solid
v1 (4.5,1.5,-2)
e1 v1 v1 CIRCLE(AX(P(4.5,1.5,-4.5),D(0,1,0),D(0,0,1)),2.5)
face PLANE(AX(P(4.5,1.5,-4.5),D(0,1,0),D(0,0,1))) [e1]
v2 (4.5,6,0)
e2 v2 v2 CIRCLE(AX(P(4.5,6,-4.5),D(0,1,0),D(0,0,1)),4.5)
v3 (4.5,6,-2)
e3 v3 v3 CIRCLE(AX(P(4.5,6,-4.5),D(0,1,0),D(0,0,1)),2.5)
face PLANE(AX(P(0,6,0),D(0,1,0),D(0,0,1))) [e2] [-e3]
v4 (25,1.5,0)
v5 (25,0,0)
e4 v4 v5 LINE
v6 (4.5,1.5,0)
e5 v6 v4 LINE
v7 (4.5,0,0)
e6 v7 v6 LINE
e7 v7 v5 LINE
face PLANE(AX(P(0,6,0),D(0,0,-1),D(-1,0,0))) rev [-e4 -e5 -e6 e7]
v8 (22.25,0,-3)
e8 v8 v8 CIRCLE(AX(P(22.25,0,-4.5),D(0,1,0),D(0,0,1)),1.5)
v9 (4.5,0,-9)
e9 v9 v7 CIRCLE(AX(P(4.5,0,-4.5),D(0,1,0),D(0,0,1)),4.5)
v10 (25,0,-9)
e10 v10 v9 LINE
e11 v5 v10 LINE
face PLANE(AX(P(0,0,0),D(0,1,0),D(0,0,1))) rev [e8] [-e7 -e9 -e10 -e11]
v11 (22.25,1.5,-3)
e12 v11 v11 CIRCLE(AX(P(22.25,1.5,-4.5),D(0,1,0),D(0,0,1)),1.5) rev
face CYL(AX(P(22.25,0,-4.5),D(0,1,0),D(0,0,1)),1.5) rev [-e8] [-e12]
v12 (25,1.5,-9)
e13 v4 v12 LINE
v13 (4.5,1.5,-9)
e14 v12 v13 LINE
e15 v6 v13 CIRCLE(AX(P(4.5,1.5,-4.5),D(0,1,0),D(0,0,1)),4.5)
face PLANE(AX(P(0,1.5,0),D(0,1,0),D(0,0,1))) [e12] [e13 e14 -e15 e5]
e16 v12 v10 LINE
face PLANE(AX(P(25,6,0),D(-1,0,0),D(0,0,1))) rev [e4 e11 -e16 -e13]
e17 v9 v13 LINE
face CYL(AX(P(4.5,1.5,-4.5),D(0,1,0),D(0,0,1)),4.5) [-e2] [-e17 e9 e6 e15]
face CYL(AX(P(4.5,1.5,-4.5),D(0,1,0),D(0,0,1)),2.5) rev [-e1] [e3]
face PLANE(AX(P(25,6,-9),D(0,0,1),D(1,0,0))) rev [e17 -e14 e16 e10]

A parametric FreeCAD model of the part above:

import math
import FreeCAD as App
import Part
import Sketcher
from FreeCAD import Vector

doc = App.newDocument("Part")
body = doc.addObject("PartDesign::Body", "Body")

sketch1 = doc.addObject("Sketcher::SketchObject", "Sketch")
body.addObject(sketch1)
sketch1.AttachmentSupport = (doc.XZ_Plane, [""])
sketch1.MapMode = "FlatFace"
sketch1.addGeometry(Part.LineSegment(Vector(0, -9, 0), Vector(0, 0, 0)), False)
sketch1.addGeometry(Part.LineSegment(Vector(0, 0, 0), Vector(25, 0, 0)), False)
sketch1.addGeometry(Part.LineSegment(Vector(25, 0, 0), Vector(25, -9, 0)), False)
sketch1.addGeometry(Part.LineSegment(Vector(25, -9, 0), Vector(0, -9, 0)), False)
sketch1.addConstraint(Sketcher.Constraint("Coincident", 0, 2, 1, 1))
sketch1.addConstraint(Sketcher.Constraint("Coincident", 1, 2, 2, 1))
sketch1.addConstraint(Sketcher.Constraint("Coincident", 2, 2, 3, 1))
sketch1.addConstraint(Sketcher.Constraint("Coincident", 3, 2, 0, 1))
sketch1.addConstraint(Sketcher.Constraint("Vertical", 0))
sketch1.addConstraint(Sketcher.Constraint("Horizontal", 1))
sketch1.addConstraint(Sketcher.Constraint("Vertical", 2))
sketch1.addConstraint(Sketcher.Constraint("Horizontal", 3))
sketch1.addConstraint(Sketcher.Constraint("Coincident", 0, 2, -1, 1))
sketch1.addConstraint(Sketcher.Constraint("DistanceX", 1, 1, 1, 2, 25.0))
sketch1.addConstraint(Sketcher.Constraint("DistanceY", 0, 1, 0, 2, 9.0))
pad1 = doc.addObject("PartDesign::Pad", "Pad")
body.addObject(pad1)
pad1.Profile = sketch1
pad1.Length = 6
pad1.Reversed = True

sketch2 = doc.addObject("Sketcher::SketchObject", "Sketch001")
body.addObject(sketch2)
sketch2.AttachmentSupport = (doc.XZ_Plane, [""])
sketch2.MapMode = "FlatFace"
sketch2.AttachmentOffset = App.Placement(Vector(0, 0, -6), App.Rotation())
sketch2.addGeometry(Part.Circle(Vector(4.5, -4.5, 0), Vector(0, 0, 1), 2.5), False)
sketch2.addConstraint(Sketcher.Constraint("Diameter", 0, 5.0))
sketch2.addConstraint(Sketcher.Constraint("DistanceX", -1, 1, 0, 3, 4.5))
sketch2.addConstraint(Sketcher.Constraint("DistanceY", 0, 3, -1, 1, 4.5))
pocket1 = doc.addObject("PartDesign::Pocket", "Pocket")
body.addObject(pocket1)
pocket1.Profile = sketch2
pocket1.Length = 4.5
pocket1.Reversed = True

sketch3 = doc.addObject("Sketcher::SketchObject", "Sketch002")
body.addObject(sketch3)
sketch3.AttachmentSupport = (doc.XZ_Plane, [""])
sketch3.MapMode = "FlatFace"
sketch3.AttachmentOffset = App.Placement(Vector(0, 0, -6), App.Rotation())
sketch3.addGeometry(Part.Circle(Vector(22.25, -4.5, 0), Vector(0, 0, 1), 1.5), False)
sketch3.addConstraint(Sketcher.Constraint("Diameter", 0, 3.0))
sketch3.addConstraint(Sketcher.Constraint("DistanceY", 0, 3, -1, 1, 4.5))
sketch3.addConstraint(Sketcher.Constraint("DistanceX", -1, 1, 0, 3, 22.25))
pocket2 = doc.addObject("PartDesign::Pocket", "Pocket001")
body.addObject(pocket2)
pocket2.Profile = sketch3
pocket2.Type = "ThroughAll"
pocket2.Midplane = True

sketch4 = doc.addObject("Sketcher::SketchObject", "Sketch003")
body.addObject(sketch4)
sketch4.AttachmentSupport = (doc.XZ_Plane, [""])
sketch4.MapMode = "FlatFace"
sketch4.AttachmentOffset = App.Placement(Vector(0, 0, -6), App.Rotation())
sketch4.addGeometry(Part.LineSegment(Vector(25, -9, 0), Vector(4.5, -9, 0)), False)
sketch4.addGeometry(Part.ArcOfCircle(Part.Circle(Vector(4.5, -4.5, 0), Vector(0, 0, 1), 4.5), math.radians(-90), math.radians(0)), False)
sketch4.addGeometry(Part.ArcOfCircle(Part.Circle(Vector(4.5, -4.5, 0), Vector(0, 0, 1), 4.5), math.radians(0), math.radians(90)), False)
sketch4.addGeometry(Part.LineSegment(Vector(4.5, 0, 0), Vector(25, 0, 0)), False)
sketch4.addGeometry(Part.LineSegment(Vector(25, 0, 0), Vector(25, -9, 0)), False)
sketch4.addGeometry(Part.Circle(Vector(22.25, -4.5, 0), Vector(0, 0, 1), 1.5), False)
sketch4.addConstraint(Sketcher.Constraint("Tangent", 0, 2, 1, 1))
sketch4.addConstraint(Sketcher.Constraint("Tangent", 1, 2, 2, 1))
sketch4.addConstraint(Sketcher.Constraint("Tangent", 2, 2, 3, 1))
sketch4.addConstraint(Sketcher.Constraint("Coincident", 3, 2, 4, 1))
sketch4.addConstraint(Sketcher.Constraint("Coincident", 4, 2, 0, 1))
sketch4.addConstraint(Sketcher.Constraint("Horizontal", 0))
sketch4.addConstraint(Sketcher.Constraint("Horizontal", 3))
sketch4.addConstraint(Sketcher.Constraint("Vertical", 4))
sketch4.addConstraint(Sketcher.Constraint("Equal", 1, 2))
sketch4.addConstraint(Sketcher.Constraint("PointOnObject", 2, 2, -1))
sketch4.addConstraint(Sketcher.Constraint("Horizontal", 2, 3, 5, 3))
sketch4.addConstraint(Sketcher.Constraint("Horizontal", 5, 3, 1, 2))
sketch4.addConstraint(Sketcher.Constraint("Diameter", 5, 3.0))
sketch4.addConstraint(Sketcher.Constraint("Radius", 1, 4.5))
sketch4.addConstraint(Sketcher.Constraint("DistanceX", 0, 2, 0, 1, 20.5))
sketch4.addConstraint(Sketcher.Constraint("DistanceX", -1, 1, 1, 2, 9.0))
sketch4.addConstraint(Sketcher.Constraint("DistanceX", -1, 1, 5, 3, 22.25))
pocket3 = doc.addObject("PartDesign::Pocket", "Pocket002")
body.addObject(pocket3)
pocket3.Profile = sketch4
pocket3.Length = 4.5
pocket3.Reversed = True

sketch5 = doc.addObject("Sketcher::SketchObject", "Sketch004")
body.addObject(sketch5)
sketch5.AttachmentSupport = (doc.XZ_Plane, [""])
sketch5.MapMode = "FlatFace"
sketch5.AttachmentOffset = App.Placement(Vector(0, 0, -6), App.Rotation())
sketch5.addGeometry(Part.ArcOfCircle(Part.Circle(Vector(4.5, -4.5, 0), Vector(0, 0, 1), 4.5), math.radians(-180), math.radians(-90)), False)
sketch5.addGeometry(Part.LineSegment(Vector(4.5, -9, 0), Vector(0, -9, 0)), False)
sketch5.addGeometry(Part.LineSegment(Vector(0, -9, 0), Vector(0, -4.5, 0)), False)
sketch5.addGeometry(Part.ArcOfCircle(Part.Circle(Vector(4.5, -4.5, 0), Vector(0, 0, 1), 4.5), math.radians(90), math.radians(180)), False)
sketch5.addGeometry(Part.LineSegment(Vector(0, -4.5, 0), Vector(0, 0, 0)), False)
sketch5.addGeometry(Part.LineSegment(Vector(0, 0, 0), Vector(4.5, 0, 0)), False)
sketch5.addConstraint(Sketcher.Constraint("Tangent", 0, 2, 1, 1))
sketch5.addConstraint(Sketcher.Constraint("Coincident", 1, 2, 2, 1))
sketch5.addConstraint(Sketcher.Constraint("Tangent", 2, 2, 0, 1))
sketch5.addConstraint(Sketcher.Constraint("Tangent", 3, 2, 4, 1))
sketch5.addConstraint(Sketcher.Constraint("Coincident", 4, 2, 5, 1))
sketch5.addConstraint(Sketcher.Constraint("Tangent", 5, 2, 3, 1))
sketch5.addConstraint(Sketcher.Constraint("Horizontal", 1))
sketch5.addConstraint(Sketcher.Constraint("Vertical", 2))
sketch5.addConstraint(Sketcher.Constraint("Vertical", 4))
sketch5.addConstraint(Sketcher.Constraint("Horizontal", 5))
sketch5.addConstraint(Sketcher.Constraint("Coincident", 4, 2, -1, 1))
sketch5.addConstraint(Sketcher.Constraint("Coincident", 3, 3, 0, 3))
sketch5.addConstraint(Sketcher.Constraint("Equal", 0, 3))
sketch5.addConstraint(Sketcher.Constraint("Radius", 0, 4.5))
pocket4 = doc.addObject("PartDesign::Pocket", "Pocket003")
body.addObject(pocket4)
pocket4.Profile = sketch5
pocket4.Type = "ThroughAll"
pocket4.Reversed = True

doc.recompute()
